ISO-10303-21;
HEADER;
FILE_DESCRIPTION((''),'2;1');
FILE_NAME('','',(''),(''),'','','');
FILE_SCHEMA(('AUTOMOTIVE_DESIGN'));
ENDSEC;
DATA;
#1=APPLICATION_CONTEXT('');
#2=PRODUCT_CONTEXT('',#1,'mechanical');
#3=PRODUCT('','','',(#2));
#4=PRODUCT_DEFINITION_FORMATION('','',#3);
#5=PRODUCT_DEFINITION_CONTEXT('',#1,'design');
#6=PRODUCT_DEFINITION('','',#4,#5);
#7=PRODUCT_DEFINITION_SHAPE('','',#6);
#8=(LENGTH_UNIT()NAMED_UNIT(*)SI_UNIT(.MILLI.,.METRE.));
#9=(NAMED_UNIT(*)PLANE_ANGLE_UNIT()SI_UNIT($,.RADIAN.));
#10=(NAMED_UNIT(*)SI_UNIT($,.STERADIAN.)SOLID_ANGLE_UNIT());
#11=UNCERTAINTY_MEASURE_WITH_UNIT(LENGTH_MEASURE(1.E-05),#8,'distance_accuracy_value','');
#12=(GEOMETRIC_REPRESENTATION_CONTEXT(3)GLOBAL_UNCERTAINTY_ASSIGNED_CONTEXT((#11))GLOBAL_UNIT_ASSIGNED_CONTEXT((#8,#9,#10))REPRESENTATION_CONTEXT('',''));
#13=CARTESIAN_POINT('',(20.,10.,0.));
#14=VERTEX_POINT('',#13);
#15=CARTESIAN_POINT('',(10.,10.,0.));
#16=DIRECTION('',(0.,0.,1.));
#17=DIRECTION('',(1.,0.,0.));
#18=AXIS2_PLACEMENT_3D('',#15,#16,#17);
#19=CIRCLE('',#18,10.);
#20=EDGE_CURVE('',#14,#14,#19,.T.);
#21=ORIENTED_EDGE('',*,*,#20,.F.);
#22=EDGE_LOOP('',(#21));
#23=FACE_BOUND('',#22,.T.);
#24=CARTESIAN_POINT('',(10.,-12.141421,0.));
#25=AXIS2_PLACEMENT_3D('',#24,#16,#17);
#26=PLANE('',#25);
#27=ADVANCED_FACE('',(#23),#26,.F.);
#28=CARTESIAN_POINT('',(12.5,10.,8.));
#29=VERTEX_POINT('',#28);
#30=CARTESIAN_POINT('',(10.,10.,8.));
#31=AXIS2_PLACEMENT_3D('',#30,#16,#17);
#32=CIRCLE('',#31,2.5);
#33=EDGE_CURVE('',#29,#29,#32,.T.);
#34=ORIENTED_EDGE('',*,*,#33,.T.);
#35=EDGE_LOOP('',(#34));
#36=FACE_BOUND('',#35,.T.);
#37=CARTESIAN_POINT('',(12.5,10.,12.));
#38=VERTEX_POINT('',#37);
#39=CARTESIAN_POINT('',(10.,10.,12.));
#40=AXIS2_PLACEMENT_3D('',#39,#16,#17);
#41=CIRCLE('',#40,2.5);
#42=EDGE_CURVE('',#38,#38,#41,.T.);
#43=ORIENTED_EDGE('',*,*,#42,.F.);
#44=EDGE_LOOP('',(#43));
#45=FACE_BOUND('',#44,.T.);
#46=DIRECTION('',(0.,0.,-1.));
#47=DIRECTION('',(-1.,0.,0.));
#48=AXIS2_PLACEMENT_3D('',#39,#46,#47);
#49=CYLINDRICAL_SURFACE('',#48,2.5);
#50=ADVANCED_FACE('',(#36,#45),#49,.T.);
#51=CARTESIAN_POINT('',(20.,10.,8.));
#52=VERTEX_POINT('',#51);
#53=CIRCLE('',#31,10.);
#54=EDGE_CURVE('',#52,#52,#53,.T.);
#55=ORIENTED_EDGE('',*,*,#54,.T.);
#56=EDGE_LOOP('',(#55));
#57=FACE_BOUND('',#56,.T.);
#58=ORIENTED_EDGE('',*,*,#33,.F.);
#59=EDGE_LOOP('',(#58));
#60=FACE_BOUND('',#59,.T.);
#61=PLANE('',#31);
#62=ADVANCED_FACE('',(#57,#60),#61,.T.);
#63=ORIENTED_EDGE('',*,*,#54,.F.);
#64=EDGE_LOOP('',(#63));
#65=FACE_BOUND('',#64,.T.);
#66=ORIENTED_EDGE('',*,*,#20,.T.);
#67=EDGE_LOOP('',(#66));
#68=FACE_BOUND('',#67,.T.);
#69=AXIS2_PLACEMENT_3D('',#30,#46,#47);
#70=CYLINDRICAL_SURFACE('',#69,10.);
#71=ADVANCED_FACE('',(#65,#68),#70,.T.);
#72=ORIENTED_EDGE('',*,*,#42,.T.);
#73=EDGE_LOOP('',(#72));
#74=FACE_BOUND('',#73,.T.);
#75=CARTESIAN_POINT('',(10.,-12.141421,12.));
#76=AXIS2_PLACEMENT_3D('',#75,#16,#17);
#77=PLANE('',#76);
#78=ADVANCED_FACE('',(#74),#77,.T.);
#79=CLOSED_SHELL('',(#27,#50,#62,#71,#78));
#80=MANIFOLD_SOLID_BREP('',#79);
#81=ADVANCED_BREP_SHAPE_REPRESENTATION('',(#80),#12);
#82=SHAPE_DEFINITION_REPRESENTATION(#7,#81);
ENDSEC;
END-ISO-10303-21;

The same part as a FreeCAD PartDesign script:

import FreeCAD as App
import Part
import Sketcher
Q = App.Units.Quantity

doc = App.newDocument("Part")
body = doc.addObject("PartDesign::Body", "Body")

# Sketch on XY plane
sketch1 = body.newObject("Sketcher::SketchObject", "Sketch")
sketch1.AttachmentSupport = (doc.getObject("XY_Plane"), [""])
sketch1.MapMode = "FlatFace"
sketch1.addGeometry(Part.Circle(App.Vector(10, 10, 0), App.Vector(0, 0, 1), 2.5), False)
sketch1.addConstraint(Sketcher.Constraint("Diameter", 0, Q("5 mm")))
sketch1.addConstraint(Sketcher.Constraint("DistanceX", -1, 1, 0, 3, Q("10 mm")))
sketch1.addConstraint(Sketcher.Constraint("DistanceY", -1, 1, 0, 3, Q("10 mm")))
pad1 = body.newObject("PartDesign::Pad", "Pad")
pad1.Profile = sketch1
pad1.Length = 12

# Sketch on XY plane
sketch2 = body.newObject("Sketcher::SketchObject", "Sketch001")
sketch2.AttachmentSupport = (doc.getObject("XY_Plane"), [""])
sketch2.MapMode = "FlatFace"
sketch2.addGeometry(Part.Circle(App.Vector(10, 10, 0), App.Vector(0, 0, 1), 10), False)
sketch2.addGeometry(Part.Circle(App.Vector(10, 10, 0), App.Vector(0, 0, 1), 2.5), False)
sketch2.addConstraint(Sketcher.Constraint("Coincident", 1, 3, 0, 3))
sketch2.addConstraint(Sketcher.Constraint("Diameter", 0, Q("20 mm")))
sketch2.addConstraint(Sketcher.Constraint("Diameter", 1, Q("5 mm")))
sketch2.addConstraint(Sketcher.Constraint("DistanceX", -1, 1, 0, 3, Q("10 mm")))
sketch2.addConstraint(Sketcher.Constraint("DistanceY", -1, 1, 0, 3, Q("10 mm")))
pad2 = body.newObject("PartDesign::Pad", "Pad001")
pad2.Profile = sketch2
pad2.Length = 8

doc.recompute()
